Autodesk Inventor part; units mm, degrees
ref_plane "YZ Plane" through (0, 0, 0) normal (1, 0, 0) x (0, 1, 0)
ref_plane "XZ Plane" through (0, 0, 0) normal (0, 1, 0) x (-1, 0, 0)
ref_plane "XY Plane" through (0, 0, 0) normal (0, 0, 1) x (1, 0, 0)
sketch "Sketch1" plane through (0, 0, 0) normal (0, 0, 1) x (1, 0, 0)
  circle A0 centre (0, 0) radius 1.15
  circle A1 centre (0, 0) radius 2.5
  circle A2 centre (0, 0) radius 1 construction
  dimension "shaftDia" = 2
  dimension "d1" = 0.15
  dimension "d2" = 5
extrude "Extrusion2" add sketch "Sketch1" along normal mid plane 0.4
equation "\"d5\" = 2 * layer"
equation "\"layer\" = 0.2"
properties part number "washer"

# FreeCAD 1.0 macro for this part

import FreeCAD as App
import Part
import Sketcher

V = App.Vector

doc = App.newDocument("Part")
params = doc.addObject("Spreadsheet::Sheet", "Params")
for row, (alias, value) in enumerate([
    ("sketch1_diameter", "5 mm"),
    ("sketch1_diameter2", "2.3 mm"),
    ("pad1_length", "0.4 mm"),
], start=1):
    params.set(f"A{row}", alias)
    params.set(f"B{row}", "=" + value)
    params.setAlias(f"B{row}", alias)

body = doc.addObject("PartDesign::Body", "Body")

sketch1 = body.newObject("Sketcher::SketchObject", "Sketch")
sketch1.AttachmentSupport = (doc.getObject("XY_Plane"), [""])
sketch1.MapMode = "FlatFace"
sketch1.addGeometry([
    Part.Circle(V(0, 0, 0), V(0, 0, 1), 2.5),
    Part.Circle(V(0, 0, 0), V(0, 0, 1), 1.1),
], False)
sketch1.addConstraint([
    Sketcher.Constraint("Coincident", 0, 3, -1, 1),
    Sketcher.Constraint("Coincident", 1, 3, -1, 1),
    Sketcher.Constraint("Diameter", 0, 5.0),
    Sketcher.Constraint("Diameter", 1, 2.3),
])
sketch1.setExpression("Constraints[2]", "Params.sketch1_diameter")
sketch1.setExpression("Constraints[3]", "Params.sketch1_diameter2")
pad1 = body.newObject("PartDesign::Pad", "Pad")
pad1.Profile = sketch1
pad1.setExpression("Length", "Params.pad1_length")
pad1.Midplane = True

doc.recompute()
